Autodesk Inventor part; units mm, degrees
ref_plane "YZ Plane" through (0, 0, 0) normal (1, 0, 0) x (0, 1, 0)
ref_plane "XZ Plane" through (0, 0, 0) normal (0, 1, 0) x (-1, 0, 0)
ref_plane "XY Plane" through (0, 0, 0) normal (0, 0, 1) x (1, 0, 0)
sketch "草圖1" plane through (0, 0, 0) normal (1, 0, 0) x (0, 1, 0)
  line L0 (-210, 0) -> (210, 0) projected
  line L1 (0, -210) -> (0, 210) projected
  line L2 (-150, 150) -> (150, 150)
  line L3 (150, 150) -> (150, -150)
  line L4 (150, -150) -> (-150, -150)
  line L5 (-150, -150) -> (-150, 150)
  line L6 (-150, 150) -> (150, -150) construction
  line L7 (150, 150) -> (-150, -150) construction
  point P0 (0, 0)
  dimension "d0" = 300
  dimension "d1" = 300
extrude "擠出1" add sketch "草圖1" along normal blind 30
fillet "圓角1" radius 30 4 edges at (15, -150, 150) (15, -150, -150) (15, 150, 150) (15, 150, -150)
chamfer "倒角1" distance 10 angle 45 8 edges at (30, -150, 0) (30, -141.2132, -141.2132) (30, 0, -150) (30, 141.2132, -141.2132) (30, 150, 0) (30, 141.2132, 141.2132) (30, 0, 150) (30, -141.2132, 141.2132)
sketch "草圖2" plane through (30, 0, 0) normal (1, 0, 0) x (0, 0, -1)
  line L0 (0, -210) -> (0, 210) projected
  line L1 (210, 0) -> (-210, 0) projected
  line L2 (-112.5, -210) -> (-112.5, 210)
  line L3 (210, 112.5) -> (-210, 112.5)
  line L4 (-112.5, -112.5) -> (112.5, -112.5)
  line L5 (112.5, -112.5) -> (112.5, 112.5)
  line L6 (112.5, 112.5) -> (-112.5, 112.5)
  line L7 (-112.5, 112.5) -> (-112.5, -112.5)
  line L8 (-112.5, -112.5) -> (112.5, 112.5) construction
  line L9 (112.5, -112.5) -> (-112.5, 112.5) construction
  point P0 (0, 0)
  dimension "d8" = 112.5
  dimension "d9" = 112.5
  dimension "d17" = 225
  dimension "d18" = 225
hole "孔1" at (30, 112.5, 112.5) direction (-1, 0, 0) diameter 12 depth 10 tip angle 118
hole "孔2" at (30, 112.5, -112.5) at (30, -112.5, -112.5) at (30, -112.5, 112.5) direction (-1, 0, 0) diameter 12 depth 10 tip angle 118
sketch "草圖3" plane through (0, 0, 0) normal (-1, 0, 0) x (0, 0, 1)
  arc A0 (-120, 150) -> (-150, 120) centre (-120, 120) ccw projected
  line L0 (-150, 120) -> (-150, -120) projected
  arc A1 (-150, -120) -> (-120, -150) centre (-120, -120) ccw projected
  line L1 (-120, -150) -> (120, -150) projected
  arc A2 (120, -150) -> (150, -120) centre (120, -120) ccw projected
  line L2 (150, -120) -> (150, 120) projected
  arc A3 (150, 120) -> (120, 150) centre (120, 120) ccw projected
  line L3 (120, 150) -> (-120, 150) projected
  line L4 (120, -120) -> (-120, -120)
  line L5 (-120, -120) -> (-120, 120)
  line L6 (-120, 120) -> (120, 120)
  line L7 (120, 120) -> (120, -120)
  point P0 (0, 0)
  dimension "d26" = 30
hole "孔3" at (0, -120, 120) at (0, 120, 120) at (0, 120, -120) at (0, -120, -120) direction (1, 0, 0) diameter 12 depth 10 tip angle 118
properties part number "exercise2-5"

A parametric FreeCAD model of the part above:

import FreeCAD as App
import Part
import Sketcher
Q = App.Units.Quantity


def edges_at(feature, points):
    """Names of the edges that pass closest to the given points."""
    edges = feature.Shape.Edges
    near = lambda p: min(range(len(edges)), key=lambda i: edges[i].distToShape(Part.Vertex(*p))[0])
    return sorted({f"Edge{near(p) + 1}" for p in points})


def add_polygon(sketch, points):
    """Adds a closed chain of lines whose ends are joined by coincident constraints."""
    first, n = sketch.GeometryCount, len(points)
    for a, b in zip(points, points[1:] + points[:1]):
        sketch.addGeometry(Part.LineSegment(App.Vector(*a, 0), App.Vector(*b, 0)), False)
    for i in range(n):
        sketch.addConstraint(Sketcher.Constraint("Coincident", first + i, 2, first + (i + 1) % n, 1))

doc = App.newDocument("Part")
body = doc.addObject("PartDesign::Body", "Body")

sketch1 = body.newObject("Sketcher::SketchObject", "Sketch")
sketch1.AttachmentSupport = (doc.getObject("YZ_Plane"), [""])
sketch1.MapMode = "FlatFace"
add_polygon(sketch1, [(-150, 150), (-150, -150), (150, -150), (150, 150)])
sketch1.addConstraint(Sketcher.Constraint("Vertical", 0))
sketch1.addConstraint(Sketcher.Constraint("Horizontal", 1))
sketch1.addConstraint(Sketcher.Constraint("Vertical", 2))
sketch1.addConstraint(Sketcher.Constraint("Horizontal", 3))
sketch1.addConstraint(Sketcher.Constraint("Symmetric", 0, 2, 2, 2, -1, 1))
sketch1.addConstraint(Sketcher.Constraint("Equal", 3, 0))
sketch1.addConstraint(Sketcher.Constraint("DistanceX", 1, 1, 1, 2, Q("300 mm")))
pad1 = body.newObject("PartDesign::Pad", "Pad")
pad1.Profile = sketch1
pad1.Length = 30
doc.recompute()

fillet = body.newObject("PartDesign::Fillet", "Fillet")
fillet.Base = (pad1, edges_at(pad1, [
    (15, -150, 150),
    (15, -150, -150),
    (15, 150, 150),
    (15, 150, -150),
]))
fillet.Radius = 30
doc.recompute()

chamfer = body.newObject("PartDesign::Chamfer", "Chamfer")
chamfer.Base = (fillet, edges_at(fillet, [
    (30, -150, 0),
    (30, -141.213, -141.213),
    (30, 0, -150),
    (30, 141.213, -141.213),
    (30, 150, 0),
    (30, 141.213, 141.213),
    (30, 0, 150),
    (30, -141.213, 141.213),
]))
chamfer.Size = 10

sketch2 = body.newObject("Sketcher::SketchObject", "Sketch001")
sketch2.AttachmentSupport = (doc.getObject("YZ_Plane"), [""])
sketch2.MapMode = "FlatFace"
sketch2.AttachmentOffset = App.Placement(App.Vector(0, 0, 30), App.Rotation())
sketch2.addGeometry(Part.Circle(App.Vector(112, 112, 0), App.Vector(0, 0, 1), 6), False)
sketch2.addConstraint(Sketcher.Constraint("Diameter", 0, Q("12 mm")))
sketch2.addConstraint(Sketcher.Constraint("DistanceX", -1, 1, 0, 3, Q("112.5 mm")))
sketch2.addConstraint(Sketcher.Constraint("DistanceY", -1, 1, 0, 3, Q("112.5 mm")))
doc.recompute()
hole = body.newObject("PartDesign::Hole", "Hole")
hole.Profile = sketch2
hole.ThreadType = "None"
hole.Diameter = 12
hole.DepthType = "Dimension"
hole.Depth = 10
hole.DrillPoint = "Angled"
hole.DrillPointAngle = 118

sketch3 = body.newObject("Sketcher::SketchObject", "Sketch002")
sketch3.AttachmentSupport = (doc.getObject("YZ_Plane"), [""])
sketch3.MapMode = "FlatFace"
sketch3.AttachmentOffset = App.Placement(App.Vector(0, 0, 30), App.Rotation())
sketch3.addGeometry(Part.Circle(App.Vector(112, -112, 0), App.Vector(0, 0, 1), 6), False)
sketch3.addGeometry(Part.Circle(App.Vector(-112, -112, 0), App.Vector(0, 0, 1), 6), False)
sketch3.addGeometry(Part.Circle(App.Vector(-112, 112, 0), App.Vector(0, 0, 1), 6), False)
sketch3.addConstraint(Sketcher.Constraint("Equal", 0, 1))
sketch3.addConstraint(Sketcher.Constraint("Equal", 1, 2))
sketch3.addConstraint(Sketcher.Constraint("Symmetric", 0, 3, 2, 3, -1, 1))
sketch3.addConstraint(Sketcher.Constraint("Symmetric", 0, 3, 1, 3, -2))
sketch3.addConstraint(Sketcher.Constraint("Diameter", 0, Q("12 mm")))
sketch3.addConstraint(Sketcher.Constraint("DistanceX", 1, 3, 0, 3, Q("225 mm")))
sketch3.addConstraint(Sketcher.Constraint("DistanceY", 1, 3, 2, 3, Q("225 mm")))
doc.recompute()
hole2 = body.newObject("PartDesign::Hole", "Hole001")
hole2.Profile = sketch3
hole2.ThreadType = "None"
hole2.Diameter = 12
hole2.DepthType = "Dimension"
hole2.Depth = 10
hole2.DrillPoint = "Angled"
hole2.DrillPointAngle = 118

sketch4 = body.newObject("Sketcher::SketchObject", "Sketch003")
sketch4.AttachmentSupport = (doc.getObject("YZ_Plane"), [""])
sketch4.MapMode = "FlatFace"
sketch4.addGeometry(Part.Circle(App.Vector(-120, 120, 0), App.Vector(0, 0, 1), 6), False)
sketch4.addGeometry(Part.Circle(App.Vector(120, 120, 0), App.Vector(0, 0, 1), 6), False)
sketch4.addGeometry(Part.Circle(App.Vector(120, -120, 0), App.Vector(0, 0, 1), 6), False)
sketch4.addGeometry(Part.Circle(App.Vector(-120, -120, 0), App.Vector(0, 0, 1), 6), False)
sketch4.addConstraint(Sketcher.Constraint("Equal", 0, 1))
sketch4.addConstraint(Sketcher.Constraint("Equal", 1, 2))
sketch4.addConstraint(Sketcher.Constraint("Equal", 2, 3))
sketch4.addConstraint(Sketcher.Constraint("Symmetric", 0, 3, 2, 3, -1, 1))
sketch4.addConstraint(Sketcher.Constraint("Symmetric", 1, 3, 3, 3, -1, 1))
sketch4.addConstraint(Sketcher.Constraint("Symmetric", 0, 3, 1, 3, -2))
sketch4.addConstraint(Sketcher.Constraint("Diameter", 0, Q("12 mm")))
sketch4.addConstraint(Sketcher.Constraint("DistanceX", 0, 3, -1, 1, Q("120 mm")))
sketch4.addConstraint(Sketcher.Constraint("DistanceY", -1, 1, 0, 3, Q("120 mm")))
doc.recompute()
hole3 = body.newObject("PartDesign::Hole", "Hole002")
hole3.Profile = sketch4
hole3.ThreadType = "None"
hole3.Diameter = 12
hole3.DepthType = "Dimension"
hole3.Depth = 10
hole3.DrillPoint = "Angled"
hole3.DrillPointAngle = 118
hole3.Reversed = True

doc.recompute()
